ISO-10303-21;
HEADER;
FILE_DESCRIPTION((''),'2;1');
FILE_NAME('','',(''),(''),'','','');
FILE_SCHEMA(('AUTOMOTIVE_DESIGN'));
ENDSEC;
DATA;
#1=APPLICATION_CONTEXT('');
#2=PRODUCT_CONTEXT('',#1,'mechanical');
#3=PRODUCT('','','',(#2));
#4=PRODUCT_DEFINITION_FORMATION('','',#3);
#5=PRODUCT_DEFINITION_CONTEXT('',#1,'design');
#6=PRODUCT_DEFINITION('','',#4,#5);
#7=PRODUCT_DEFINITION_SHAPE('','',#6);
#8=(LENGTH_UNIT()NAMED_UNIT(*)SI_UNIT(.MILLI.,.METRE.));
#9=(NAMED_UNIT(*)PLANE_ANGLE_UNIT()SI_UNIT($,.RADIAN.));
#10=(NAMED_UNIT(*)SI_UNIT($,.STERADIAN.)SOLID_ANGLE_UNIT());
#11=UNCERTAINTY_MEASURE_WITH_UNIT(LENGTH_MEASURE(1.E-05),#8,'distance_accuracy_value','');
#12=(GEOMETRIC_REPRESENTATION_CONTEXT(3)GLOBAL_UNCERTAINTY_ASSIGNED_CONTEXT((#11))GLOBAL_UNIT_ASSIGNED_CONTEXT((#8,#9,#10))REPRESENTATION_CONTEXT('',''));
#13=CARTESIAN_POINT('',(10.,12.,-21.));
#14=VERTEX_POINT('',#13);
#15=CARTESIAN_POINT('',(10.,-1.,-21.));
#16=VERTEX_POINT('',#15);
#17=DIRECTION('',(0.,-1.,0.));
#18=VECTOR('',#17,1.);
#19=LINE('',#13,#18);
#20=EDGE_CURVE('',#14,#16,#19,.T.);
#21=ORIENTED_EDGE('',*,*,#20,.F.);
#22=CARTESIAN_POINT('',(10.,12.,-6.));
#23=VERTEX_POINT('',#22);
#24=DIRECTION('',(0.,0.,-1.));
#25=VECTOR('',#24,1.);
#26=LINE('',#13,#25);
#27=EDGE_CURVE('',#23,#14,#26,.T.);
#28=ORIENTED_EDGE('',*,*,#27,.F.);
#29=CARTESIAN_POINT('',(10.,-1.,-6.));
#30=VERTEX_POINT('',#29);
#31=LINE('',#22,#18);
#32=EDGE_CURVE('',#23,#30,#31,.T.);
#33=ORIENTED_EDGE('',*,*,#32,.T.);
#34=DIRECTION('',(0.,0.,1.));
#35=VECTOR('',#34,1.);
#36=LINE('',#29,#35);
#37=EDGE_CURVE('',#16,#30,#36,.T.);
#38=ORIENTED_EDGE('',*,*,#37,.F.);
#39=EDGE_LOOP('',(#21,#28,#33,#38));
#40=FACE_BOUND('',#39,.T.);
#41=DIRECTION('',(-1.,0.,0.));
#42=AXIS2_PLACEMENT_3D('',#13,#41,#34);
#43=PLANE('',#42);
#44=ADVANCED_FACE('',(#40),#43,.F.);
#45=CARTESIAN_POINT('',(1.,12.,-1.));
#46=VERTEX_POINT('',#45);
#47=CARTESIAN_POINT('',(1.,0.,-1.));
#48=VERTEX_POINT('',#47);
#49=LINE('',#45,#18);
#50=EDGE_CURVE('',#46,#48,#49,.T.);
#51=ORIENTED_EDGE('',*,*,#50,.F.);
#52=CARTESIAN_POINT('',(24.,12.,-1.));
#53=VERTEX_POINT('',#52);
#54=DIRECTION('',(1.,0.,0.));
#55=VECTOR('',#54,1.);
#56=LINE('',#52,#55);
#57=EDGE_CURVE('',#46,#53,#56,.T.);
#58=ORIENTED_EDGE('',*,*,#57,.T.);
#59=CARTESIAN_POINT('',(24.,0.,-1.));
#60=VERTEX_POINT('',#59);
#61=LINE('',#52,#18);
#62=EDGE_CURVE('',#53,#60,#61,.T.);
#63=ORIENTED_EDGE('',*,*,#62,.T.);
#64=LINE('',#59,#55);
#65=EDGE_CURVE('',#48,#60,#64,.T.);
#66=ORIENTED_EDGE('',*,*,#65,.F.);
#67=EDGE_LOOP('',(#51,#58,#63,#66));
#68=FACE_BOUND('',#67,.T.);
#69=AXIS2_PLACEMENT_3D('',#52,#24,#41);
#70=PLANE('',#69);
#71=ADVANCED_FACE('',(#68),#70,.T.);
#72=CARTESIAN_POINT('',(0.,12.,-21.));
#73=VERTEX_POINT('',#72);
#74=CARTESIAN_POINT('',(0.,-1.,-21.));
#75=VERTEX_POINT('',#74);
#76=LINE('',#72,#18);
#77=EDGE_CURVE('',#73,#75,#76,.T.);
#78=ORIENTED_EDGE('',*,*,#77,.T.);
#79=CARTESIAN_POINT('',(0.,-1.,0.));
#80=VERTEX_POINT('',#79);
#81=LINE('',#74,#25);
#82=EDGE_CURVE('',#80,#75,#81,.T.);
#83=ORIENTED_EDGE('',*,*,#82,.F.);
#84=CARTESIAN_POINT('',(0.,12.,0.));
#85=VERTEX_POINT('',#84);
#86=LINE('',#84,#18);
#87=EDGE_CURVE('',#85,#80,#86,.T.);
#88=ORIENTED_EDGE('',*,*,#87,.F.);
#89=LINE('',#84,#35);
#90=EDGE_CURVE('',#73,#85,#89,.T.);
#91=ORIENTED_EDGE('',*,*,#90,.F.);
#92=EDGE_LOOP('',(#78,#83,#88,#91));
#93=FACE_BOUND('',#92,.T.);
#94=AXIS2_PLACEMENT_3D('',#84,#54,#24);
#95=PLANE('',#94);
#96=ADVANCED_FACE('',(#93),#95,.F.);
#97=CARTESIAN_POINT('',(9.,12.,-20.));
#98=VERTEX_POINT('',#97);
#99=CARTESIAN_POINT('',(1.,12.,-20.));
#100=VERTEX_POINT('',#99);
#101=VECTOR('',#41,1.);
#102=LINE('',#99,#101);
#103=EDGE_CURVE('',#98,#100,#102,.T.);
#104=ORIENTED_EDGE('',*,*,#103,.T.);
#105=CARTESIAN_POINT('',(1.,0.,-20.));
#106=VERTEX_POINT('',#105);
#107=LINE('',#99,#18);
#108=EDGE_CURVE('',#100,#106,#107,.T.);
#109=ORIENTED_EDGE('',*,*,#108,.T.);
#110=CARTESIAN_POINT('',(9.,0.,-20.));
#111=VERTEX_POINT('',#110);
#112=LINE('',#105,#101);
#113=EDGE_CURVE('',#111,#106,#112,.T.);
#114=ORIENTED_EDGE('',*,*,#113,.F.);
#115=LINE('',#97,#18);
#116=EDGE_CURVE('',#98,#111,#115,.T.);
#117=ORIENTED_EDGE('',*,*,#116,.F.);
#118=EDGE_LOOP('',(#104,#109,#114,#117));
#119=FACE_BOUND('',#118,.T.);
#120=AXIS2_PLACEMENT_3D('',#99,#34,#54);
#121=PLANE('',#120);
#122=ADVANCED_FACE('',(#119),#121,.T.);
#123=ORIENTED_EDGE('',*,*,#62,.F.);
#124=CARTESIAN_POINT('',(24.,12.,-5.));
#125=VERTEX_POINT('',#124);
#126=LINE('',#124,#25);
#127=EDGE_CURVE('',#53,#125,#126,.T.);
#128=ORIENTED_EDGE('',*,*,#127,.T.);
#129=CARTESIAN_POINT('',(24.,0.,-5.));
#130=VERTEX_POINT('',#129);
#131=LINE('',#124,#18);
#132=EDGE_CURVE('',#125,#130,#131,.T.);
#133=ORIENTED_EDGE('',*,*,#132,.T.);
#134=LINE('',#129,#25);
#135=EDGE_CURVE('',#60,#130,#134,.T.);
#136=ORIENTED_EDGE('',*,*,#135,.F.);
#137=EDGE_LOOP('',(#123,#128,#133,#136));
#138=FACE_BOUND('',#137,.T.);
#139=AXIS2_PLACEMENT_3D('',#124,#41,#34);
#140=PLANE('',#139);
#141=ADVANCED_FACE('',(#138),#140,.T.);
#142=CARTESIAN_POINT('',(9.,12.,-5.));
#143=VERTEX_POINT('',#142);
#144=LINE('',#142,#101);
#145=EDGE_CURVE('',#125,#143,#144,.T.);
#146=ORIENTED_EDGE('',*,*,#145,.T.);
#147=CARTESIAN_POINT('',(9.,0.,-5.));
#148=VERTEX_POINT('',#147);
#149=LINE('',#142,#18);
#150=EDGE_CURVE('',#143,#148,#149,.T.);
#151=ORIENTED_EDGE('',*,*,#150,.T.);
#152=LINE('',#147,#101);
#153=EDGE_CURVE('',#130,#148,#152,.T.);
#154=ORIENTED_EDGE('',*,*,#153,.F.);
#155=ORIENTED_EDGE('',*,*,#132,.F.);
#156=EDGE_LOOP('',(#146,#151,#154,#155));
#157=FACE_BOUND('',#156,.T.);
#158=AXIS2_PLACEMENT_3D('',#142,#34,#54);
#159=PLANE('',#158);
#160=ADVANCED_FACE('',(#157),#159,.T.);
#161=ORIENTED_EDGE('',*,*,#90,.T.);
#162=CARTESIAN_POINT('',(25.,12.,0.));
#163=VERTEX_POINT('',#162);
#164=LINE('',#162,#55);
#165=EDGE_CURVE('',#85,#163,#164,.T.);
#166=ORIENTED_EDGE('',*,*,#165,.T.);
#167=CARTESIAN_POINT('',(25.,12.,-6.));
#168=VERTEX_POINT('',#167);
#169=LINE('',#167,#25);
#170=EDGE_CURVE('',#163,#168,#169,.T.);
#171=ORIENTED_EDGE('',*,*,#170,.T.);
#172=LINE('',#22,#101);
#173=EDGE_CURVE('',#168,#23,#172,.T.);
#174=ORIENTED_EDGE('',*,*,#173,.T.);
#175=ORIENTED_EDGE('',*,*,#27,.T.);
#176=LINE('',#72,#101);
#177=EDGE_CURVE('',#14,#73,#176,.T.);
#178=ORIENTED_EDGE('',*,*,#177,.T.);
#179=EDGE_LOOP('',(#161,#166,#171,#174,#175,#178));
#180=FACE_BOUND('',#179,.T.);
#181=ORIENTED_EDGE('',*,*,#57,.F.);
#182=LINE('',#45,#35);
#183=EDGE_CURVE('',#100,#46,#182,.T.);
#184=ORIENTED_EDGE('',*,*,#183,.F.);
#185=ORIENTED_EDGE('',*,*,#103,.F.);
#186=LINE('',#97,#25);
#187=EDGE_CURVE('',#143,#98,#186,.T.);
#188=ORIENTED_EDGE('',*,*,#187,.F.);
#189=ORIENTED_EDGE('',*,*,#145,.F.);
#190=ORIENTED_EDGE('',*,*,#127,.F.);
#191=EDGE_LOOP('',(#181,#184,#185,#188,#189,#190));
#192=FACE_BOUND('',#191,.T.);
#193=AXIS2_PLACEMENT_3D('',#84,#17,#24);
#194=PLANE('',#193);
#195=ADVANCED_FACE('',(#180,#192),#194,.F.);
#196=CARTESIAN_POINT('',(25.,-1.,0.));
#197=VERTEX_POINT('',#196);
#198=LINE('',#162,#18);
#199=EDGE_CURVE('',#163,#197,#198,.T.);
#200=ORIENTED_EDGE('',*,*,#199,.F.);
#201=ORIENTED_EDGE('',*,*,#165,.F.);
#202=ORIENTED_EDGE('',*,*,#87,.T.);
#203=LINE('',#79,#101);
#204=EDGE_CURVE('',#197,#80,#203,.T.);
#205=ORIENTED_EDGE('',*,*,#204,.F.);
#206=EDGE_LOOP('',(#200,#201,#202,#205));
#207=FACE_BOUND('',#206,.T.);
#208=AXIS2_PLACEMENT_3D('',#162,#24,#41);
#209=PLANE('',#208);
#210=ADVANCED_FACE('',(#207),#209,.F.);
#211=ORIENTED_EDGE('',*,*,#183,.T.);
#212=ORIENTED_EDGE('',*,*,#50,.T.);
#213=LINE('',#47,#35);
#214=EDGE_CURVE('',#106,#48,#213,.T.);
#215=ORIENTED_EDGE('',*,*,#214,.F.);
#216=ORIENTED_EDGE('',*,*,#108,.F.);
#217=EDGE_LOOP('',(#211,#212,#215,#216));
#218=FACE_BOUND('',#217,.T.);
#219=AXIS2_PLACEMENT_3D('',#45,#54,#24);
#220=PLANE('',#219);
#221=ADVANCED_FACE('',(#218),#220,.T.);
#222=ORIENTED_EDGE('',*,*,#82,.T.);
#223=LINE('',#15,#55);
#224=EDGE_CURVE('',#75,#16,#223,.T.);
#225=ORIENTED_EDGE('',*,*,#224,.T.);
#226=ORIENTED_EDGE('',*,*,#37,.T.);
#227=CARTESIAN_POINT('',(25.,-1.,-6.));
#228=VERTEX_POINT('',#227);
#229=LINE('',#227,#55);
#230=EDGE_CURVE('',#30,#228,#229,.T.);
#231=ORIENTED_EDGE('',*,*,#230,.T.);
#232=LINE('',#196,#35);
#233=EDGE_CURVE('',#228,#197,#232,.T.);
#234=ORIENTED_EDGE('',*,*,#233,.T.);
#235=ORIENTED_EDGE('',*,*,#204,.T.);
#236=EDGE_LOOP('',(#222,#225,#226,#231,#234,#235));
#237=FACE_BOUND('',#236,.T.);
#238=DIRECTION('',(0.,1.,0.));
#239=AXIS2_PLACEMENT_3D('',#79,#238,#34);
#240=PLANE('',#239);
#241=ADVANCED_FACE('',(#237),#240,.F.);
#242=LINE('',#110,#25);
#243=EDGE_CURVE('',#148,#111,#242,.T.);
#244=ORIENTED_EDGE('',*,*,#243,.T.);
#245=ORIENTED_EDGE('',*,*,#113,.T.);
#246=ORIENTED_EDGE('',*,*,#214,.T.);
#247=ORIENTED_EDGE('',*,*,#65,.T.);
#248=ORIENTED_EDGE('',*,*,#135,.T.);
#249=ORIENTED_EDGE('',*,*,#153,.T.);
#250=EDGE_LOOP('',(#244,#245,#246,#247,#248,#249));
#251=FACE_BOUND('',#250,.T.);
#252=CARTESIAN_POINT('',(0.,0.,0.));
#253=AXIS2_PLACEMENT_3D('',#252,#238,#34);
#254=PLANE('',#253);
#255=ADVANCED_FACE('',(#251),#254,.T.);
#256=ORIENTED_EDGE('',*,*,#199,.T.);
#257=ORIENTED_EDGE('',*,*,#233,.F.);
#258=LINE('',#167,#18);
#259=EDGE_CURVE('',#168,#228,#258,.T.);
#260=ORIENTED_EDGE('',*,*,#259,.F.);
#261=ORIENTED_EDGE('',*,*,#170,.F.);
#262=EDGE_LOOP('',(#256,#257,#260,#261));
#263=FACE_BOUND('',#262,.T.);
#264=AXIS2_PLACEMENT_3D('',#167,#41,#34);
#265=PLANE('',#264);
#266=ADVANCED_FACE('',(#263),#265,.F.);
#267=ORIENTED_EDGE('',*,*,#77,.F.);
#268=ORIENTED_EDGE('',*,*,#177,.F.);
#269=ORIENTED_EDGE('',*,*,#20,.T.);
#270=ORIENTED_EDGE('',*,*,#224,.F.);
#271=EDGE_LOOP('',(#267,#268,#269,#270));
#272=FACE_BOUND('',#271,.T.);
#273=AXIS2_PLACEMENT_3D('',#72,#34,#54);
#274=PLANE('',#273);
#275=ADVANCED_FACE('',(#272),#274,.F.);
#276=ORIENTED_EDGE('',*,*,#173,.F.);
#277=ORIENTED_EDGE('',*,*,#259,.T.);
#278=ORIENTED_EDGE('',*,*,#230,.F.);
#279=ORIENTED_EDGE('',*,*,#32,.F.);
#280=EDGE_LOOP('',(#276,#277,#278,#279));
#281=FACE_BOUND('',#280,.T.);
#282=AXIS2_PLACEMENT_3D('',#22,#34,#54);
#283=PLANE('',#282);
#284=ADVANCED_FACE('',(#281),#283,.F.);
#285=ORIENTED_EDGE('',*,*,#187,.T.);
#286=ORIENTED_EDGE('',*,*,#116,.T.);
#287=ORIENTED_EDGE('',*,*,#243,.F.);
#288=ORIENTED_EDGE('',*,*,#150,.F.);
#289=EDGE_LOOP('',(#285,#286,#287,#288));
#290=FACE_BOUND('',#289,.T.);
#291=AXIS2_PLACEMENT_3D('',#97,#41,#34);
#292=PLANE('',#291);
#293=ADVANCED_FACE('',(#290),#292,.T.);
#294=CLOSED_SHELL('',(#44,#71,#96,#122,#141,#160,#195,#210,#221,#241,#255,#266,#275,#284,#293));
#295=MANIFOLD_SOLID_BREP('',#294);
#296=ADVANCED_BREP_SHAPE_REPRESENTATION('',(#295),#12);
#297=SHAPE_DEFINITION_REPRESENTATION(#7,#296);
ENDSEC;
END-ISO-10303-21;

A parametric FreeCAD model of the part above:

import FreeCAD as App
import Part
import Sketcher

V = App.Vector
Q = App.Units.Quantity


def add_polygon(sketch, points):
    """Adds a closed chain of lines whose ends are joined by coincident constraints."""
    first, n = sketch.GeometryCount, len(points)
    for a, b in zip(points, points[1:] + points[:1]):
        sketch.addGeometry(Part.LineSegment(App.Vector(*a, 0), App.Vector(*b, 0)), False)
    for i in range(n):
        sketch.addConstraint(Sketcher.Constraint("Coincident", first + i, 2, first + (i + 1) % n, 1))

doc = App.newDocument("Part")
body = doc.addObject("PartDesign::Body", "Body")

# Sketch on XZ plane
sketch1 = body.newObject("Sketcher::SketchObject", "Sketch")
sketch1.AttachmentSupport = (doc.getObject("XZ_Plane"), [""])
sketch1.MapMode = "FlatFace"
add_polygon(sketch1, [(0, -21), (0, 0), (25, 0), (25, -6), (10, -6), (10, -21)])  # lines 0-5
add_polygon(sketch1, [(1, -20), (9, -20), (9, -5), (24, -5), (24, -1), (1, -1)])  # lines 6-11
sketch1.addConstraint(Sketcher.Constraint("Vertical", 0))
sketch1.addConstraint(Sketcher.Constraint("Horizontal", 1))
sketch1.addConstraint(Sketcher.Constraint("Vertical", 2))
sketch1.addConstraint(Sketcher.Constraint("Horizontal", 3))
sketch1.addConstraint(Sketcher.Constraint("Vertical", 4))
sketch1.addConstraint(Sketcher.Constraint("Horizontal", 5))
sketch1.addConstraint(Sketcher.Constraint("Horizontal", 6))
sketch1.addConstraint(Sketcher.Constraint("Vertical", 7))
sketch1.addConstraint(Sketcher.Constraint("Horizontal", 8))
sketch1.addConstraint(Sketcher.Constraint("Vertical", 9))
sketch1.addConstraint(Sketcher.Constraint("Horizontal", 10))
sketch1.addConstraint(Sketcher.Constraint("Vertical", 11))
sketch1.addConstraint(Sketcher.Constraint("Coincident", 0, 2, -1, 1))
sketch1.addConstraint(Sketcher.Constraint("Equal", 3, 8))
sketch1.addConstraint(Sketcher.Constraint("Equal", 8, 4))
sketch1.addConstraint(Sketcher.Constraint("Equal", 4, 7))
sketch1.addConstraint(Sketcher.Constraint("DistanceX", 1, 1, 1, 2, Q("25 mm")))
sketch1.addConstraint(Sketcher.Constraint("DistanceX", 3, 2, 3, 1, Q("15 mm")))
sketch1.addConstraint(Sketcher.Constraint("DistanceX", 6, 1, 6, 2, Q("8 mm")))
sketch1.addConstraint(Sketcher.Constraint("DistanceY", 0, 1, 0, 2, Q("21 mm")))
sketch1.addConstraint(Sketcher.Constraint("DistanceY", 9, 1, 9, 2, Q("4 mm")))
sketch1.addConstraint(Sketcher.Constraint("DistanceX", -1, 1, 6, 2, Q("9 mm")))
sketch1.addConstraint(Sketcher.Constraint("DistanceY", 6, 2, -1, 1, Q("20 mm")))
pad1 = body.newObject("PartDesign::Pad", "Pad")
pad1.Profile = sketch1
pad1.Length = 12
pad1.Reversed = True

# Sketch on XZ plane
sketch2 = body.newObject("Sketcher::SketchObject", "Sketch001")
sketch2.AttachmentSupport = (doc.getObject("XZ_Plane"), [""])
sketch2.MapMode = "FlatFace"
add_polygon(sketch2, [(0, -21), (10, -21), (10, -6), (25, -6), (25, 0), (0, 0)])  # lines 0-5
sketch2.addConstraint(Sketcher.Constraint("Horizontal", 0))
sketch2.addConstraint(Sketcher.Constraint("Vertical", 1))
sketch2.addConstraint(Sketcher.Constraint("Horizontal", 2))
sketch2.addConstraint(Sketcher.Constraint("Vertical", 3))
sketch2.addConstraint(Sketcher.Constraint("Horizontal", 4))
sketch2.addConstraint(Sketcher.Constraint("Vertical", 5))
sketch2.addConstraint(Sketcher.Constraint("Coincident", 4, 2, -1, 1))
sketch2.addConstraint(Sketcher.Constraint("Equal", 2, 1))
sketch2.addConstraint(Sketcher.Constraint("DistanceX", 0, 1, 0, 2, Q("10 mm")))
sketch2.addConstraint(Sketcher.Constraint("DistanceX", 2, 1, 2, 2, Q("15 mm")))
sketch2.addConstraint(Sketcher.Constraint("DistanceY", 3, 1, 3, 2, Q("6 mm")))
pad2 = body.newObject("PartDesign::Pad", "Pad001")
pad2.Profile = sketch2
pad2.Length = 1

doc.recompute()
